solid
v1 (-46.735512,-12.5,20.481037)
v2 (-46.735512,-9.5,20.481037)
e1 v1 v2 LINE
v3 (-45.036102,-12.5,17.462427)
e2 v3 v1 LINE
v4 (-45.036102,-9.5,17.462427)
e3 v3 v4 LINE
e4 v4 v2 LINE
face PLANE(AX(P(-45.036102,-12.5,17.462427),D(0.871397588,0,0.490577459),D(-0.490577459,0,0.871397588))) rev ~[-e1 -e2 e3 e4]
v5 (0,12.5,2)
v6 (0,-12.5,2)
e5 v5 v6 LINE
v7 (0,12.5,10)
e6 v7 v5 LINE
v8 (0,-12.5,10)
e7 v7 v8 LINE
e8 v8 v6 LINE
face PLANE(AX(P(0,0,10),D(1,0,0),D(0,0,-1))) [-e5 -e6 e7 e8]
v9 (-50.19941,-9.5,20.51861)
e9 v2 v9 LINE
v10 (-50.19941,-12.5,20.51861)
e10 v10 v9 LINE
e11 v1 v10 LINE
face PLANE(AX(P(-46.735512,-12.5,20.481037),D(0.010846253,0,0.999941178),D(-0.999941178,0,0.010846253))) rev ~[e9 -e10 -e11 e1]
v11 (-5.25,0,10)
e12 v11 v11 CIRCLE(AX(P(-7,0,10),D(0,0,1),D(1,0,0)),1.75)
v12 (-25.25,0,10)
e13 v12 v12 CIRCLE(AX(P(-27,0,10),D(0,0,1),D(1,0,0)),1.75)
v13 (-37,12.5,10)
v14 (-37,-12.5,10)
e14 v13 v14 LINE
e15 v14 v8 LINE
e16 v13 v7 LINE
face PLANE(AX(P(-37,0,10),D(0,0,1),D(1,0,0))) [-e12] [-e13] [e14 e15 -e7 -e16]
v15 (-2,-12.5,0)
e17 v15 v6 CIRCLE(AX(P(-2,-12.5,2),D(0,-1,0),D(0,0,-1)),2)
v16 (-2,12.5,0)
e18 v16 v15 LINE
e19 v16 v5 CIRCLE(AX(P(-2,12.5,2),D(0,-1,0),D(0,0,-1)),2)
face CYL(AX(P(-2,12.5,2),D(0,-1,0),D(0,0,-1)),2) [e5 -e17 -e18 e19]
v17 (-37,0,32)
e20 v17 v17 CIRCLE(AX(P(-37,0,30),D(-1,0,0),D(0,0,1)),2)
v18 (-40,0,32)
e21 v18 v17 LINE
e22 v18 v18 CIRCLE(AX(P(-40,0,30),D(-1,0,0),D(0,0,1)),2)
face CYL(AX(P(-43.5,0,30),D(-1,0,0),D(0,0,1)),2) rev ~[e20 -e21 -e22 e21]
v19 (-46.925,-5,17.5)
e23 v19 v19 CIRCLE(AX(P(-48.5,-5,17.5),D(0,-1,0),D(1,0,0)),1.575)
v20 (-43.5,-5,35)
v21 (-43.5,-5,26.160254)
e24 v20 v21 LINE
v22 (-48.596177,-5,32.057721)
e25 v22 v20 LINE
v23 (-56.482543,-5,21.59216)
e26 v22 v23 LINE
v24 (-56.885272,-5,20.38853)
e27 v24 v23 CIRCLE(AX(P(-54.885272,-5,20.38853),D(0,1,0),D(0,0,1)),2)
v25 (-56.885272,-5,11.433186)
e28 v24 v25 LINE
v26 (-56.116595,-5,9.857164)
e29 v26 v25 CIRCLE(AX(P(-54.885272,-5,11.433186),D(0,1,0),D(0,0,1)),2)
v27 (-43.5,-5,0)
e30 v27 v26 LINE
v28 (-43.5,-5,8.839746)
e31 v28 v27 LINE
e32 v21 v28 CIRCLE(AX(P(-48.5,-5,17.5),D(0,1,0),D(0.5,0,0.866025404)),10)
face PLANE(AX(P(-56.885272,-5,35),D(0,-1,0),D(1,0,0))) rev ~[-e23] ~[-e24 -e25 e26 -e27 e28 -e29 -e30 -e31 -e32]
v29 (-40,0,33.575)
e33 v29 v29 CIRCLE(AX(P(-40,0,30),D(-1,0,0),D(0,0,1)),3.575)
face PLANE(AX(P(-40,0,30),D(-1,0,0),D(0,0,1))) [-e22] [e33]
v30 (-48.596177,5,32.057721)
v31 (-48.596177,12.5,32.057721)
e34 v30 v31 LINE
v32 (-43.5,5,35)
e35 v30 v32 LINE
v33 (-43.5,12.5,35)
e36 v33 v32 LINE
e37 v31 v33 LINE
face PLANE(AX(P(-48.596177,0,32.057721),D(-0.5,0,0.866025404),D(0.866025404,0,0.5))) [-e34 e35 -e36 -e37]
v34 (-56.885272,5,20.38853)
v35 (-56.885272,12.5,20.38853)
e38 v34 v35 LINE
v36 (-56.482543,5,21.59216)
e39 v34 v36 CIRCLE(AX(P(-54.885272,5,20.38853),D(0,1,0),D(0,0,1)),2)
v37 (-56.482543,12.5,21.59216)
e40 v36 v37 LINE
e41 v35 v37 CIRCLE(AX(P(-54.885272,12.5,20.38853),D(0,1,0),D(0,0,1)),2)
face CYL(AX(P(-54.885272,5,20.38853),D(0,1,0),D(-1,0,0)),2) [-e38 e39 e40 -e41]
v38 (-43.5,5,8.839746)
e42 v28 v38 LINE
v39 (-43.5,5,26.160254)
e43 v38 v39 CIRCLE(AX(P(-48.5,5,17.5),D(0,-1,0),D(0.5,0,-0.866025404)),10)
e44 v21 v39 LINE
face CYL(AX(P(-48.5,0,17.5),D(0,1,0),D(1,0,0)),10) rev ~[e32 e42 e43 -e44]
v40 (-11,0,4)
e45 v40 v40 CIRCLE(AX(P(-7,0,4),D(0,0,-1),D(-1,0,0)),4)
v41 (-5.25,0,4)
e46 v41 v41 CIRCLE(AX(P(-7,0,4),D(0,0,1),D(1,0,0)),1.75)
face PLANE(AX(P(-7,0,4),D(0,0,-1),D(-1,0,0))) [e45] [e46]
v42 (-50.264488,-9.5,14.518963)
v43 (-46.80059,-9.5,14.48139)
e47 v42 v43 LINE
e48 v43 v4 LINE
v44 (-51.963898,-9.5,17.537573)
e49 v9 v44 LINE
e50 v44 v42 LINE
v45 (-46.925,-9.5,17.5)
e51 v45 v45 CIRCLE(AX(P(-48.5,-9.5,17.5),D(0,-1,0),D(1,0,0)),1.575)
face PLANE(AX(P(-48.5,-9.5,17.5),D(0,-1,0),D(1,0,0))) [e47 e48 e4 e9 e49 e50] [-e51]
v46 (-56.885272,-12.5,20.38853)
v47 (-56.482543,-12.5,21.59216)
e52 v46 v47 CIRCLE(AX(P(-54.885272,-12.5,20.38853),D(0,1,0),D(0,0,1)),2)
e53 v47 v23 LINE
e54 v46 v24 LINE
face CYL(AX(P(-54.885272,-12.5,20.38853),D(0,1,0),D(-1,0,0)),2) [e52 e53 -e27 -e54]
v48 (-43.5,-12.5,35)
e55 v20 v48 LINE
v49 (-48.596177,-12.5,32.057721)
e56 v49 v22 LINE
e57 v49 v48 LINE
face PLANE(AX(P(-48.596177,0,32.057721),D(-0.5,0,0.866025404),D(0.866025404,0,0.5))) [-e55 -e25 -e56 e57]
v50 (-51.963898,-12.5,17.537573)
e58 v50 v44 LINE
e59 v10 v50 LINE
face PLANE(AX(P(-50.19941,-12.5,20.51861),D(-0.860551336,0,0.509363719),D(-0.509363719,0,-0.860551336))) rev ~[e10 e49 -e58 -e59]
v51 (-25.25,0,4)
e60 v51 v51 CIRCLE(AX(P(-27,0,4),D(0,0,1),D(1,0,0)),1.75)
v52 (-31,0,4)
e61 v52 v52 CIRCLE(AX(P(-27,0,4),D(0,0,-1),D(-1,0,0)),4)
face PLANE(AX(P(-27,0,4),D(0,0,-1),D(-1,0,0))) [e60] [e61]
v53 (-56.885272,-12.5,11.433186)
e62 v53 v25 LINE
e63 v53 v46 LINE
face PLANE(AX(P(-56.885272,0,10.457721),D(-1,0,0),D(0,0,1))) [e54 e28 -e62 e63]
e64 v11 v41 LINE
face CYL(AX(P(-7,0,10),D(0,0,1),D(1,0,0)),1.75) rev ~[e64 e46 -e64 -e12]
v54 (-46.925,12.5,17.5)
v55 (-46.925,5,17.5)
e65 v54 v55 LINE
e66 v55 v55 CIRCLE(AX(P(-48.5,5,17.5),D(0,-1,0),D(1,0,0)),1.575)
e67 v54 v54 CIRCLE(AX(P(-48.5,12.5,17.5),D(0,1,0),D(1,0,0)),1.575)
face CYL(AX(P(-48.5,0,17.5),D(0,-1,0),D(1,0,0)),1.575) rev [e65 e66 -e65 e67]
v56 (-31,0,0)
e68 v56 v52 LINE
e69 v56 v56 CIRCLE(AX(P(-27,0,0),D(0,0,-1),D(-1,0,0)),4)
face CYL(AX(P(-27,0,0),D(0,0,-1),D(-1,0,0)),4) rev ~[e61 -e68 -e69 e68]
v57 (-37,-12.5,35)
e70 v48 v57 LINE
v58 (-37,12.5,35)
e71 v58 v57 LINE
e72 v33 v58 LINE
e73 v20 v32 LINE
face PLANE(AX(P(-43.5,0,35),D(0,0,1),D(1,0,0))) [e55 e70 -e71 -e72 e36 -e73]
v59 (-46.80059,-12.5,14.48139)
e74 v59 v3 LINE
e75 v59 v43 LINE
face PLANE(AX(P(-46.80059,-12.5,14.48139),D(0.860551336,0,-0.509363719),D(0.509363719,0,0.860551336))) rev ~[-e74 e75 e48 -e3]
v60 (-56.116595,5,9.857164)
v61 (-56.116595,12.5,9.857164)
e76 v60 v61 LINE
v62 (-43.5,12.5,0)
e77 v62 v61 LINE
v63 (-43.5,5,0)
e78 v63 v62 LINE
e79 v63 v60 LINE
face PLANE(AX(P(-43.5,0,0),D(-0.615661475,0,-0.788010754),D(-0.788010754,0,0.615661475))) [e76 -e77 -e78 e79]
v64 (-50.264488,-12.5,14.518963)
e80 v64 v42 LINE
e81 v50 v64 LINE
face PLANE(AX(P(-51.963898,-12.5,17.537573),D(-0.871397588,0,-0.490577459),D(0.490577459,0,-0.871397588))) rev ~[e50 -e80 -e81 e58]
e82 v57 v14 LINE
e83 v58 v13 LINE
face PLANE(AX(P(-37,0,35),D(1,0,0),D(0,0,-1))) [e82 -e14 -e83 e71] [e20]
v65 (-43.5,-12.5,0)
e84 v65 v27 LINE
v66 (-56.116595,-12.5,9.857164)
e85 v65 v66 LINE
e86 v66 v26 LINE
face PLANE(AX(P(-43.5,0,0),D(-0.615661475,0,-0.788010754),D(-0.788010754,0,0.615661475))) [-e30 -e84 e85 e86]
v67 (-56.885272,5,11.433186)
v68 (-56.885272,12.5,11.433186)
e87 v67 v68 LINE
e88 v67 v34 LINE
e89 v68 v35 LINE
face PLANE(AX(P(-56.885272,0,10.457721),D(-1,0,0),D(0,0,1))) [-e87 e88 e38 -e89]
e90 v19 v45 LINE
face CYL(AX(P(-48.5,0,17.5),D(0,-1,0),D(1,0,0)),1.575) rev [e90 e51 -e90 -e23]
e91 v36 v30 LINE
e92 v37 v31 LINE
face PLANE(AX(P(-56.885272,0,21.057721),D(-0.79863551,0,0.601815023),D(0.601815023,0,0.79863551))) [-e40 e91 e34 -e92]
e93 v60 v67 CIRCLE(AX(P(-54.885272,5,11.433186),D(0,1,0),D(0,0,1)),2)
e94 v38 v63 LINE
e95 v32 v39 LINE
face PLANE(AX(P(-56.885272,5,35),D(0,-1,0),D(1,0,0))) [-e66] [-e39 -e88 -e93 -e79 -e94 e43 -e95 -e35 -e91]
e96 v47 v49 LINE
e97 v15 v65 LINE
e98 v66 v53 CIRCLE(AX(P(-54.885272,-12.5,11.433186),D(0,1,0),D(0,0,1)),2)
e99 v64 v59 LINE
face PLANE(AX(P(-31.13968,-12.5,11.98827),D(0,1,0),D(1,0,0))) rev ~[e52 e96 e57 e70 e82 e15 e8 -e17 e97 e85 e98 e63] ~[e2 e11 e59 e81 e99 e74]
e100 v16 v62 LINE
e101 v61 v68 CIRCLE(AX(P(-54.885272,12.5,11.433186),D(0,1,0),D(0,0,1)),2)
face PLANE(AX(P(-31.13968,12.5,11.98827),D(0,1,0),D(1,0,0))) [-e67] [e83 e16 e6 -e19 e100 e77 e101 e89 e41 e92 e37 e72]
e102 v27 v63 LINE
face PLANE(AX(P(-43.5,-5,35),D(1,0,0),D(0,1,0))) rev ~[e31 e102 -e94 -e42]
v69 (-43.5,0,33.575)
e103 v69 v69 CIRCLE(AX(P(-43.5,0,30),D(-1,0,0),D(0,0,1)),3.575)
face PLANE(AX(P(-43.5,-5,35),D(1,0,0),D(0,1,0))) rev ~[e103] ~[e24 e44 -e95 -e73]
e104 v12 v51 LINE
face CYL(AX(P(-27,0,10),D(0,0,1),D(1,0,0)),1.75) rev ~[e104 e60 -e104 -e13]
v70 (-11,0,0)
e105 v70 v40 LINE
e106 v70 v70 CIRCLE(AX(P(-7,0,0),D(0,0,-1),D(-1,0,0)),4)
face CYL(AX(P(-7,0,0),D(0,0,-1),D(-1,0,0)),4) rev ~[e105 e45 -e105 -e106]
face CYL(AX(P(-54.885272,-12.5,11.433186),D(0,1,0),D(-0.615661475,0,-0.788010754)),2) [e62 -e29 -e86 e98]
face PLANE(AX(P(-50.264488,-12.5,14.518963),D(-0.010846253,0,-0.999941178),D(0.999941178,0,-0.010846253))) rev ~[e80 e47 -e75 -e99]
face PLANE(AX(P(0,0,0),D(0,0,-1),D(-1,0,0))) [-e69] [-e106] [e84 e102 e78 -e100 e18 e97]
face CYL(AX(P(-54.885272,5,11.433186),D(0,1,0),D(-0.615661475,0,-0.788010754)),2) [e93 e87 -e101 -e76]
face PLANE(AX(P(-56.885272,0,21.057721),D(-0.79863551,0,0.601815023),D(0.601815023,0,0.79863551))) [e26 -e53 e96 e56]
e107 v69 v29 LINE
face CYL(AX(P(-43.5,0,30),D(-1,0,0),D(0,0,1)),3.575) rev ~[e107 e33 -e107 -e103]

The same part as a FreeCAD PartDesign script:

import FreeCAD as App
import Part
import Sketcher
from FreeCAD import Vector
Q = App.Units.Quantity


def edges_at(feature, points):
    """Names of the edges that pass closest to the given points."""
    edges = feature.Shape.Edges
    near = lambda p: min(range(len(edges)), key=lambda i: edges[i].distToShape(Part.Vertex(*p))[0])
    return sorted({f"Edge{near(p) + 1}" for p in points})

doc = App.newDocument("Part")
params = doc.addObject("Spreadsheet::Sheet", "Params")
for row, (alias, value) in enumerate([
    ("sketch1_diameter", "3.15 mm"),
    ("sketch1_width", "37 mm"),
    ("sketch1_height", "25 mm"),
    ("sketch1_height2", "10 mm"),
    ("sketch1_width2", "43.5 mm"),
    ("pad1_length", "25 mm"),
    ("sketch2_height", "10 mm"),
    ("sketch3_diameter", "3.5 mm"),
    ("pocket2_length", "25 mm"),
    ("sketch4_diameter", "8 mm"),
    ("pocket3_length", "4 mm"),
    ("fillet_radius", "2 mm"),
    ("sketch5_diameter", "4 mm"),
    ("pocket4_length", "10 mm"),
    ("sketch6_diameter", "7.15 mm"),
    ("pocket5_length", "3.5 mm"),
    ("sketch7_diameter", "20 mm"),
    ("pocket6_length", "5 mm"),
    ("pocket6_length2", "5 mm"),
    ("pocket7_length", "3 mm"),
], start=1):
    params.set(f"A{row}", alias)
    params.set(f"B{row}", "=" + value)
    params.setAlias(f"B{row}", alias)

body = doc.addObject("PartDesign::Body", "Body")

sketch1 = body.newObject("Sketcher::SketchObject", "Sketch")
sketch1.AttachmentSupport = (doc.getObject("XZ_Plane"), [""])
sketch1.MapMode = "FlatFace"
sketch1.addGeometry([
    Part.LineSegment(Vector(0, 0, 0), Vector(-43.5, 0, 0)),
    Part.LineSegment(Vector(-43.5, 0, 0), Vector(-56.885272, 10.457721, 0)),
    Part.LineSegment(Vector(-56.885272, 10.457721, 0), Vector(-56.885272, 21.057721, 0)),
    Part.LineSegment(Vector(-56.885272, 21.057721, 0), Vector(-48.596177, 32.057721, 0)),
    Part.LineSegment(Vector(-48.596177, 32.057721, 0), Vector(-43.5, 35, 0)),
    Part.LineSegment(Vector(-43.5, 35, 0), Vector(-37, 35, 0)),
    Part.LineSegment(Vector(-37, 35, 0), Vector(-37, 10, 0)),
    Part.LineSegment(Vector(-37, 10, 0), Vector(0, 10, 0)),
    Part.LineSegment(Vector(0, 10, 0), Vector(0, 0, 0)),
    Part.Circle(Vector(-48.5, 17.5, 0), Vector(0, 0, 1), 1.575),
], False)
sketch1.addConstraint([
    Sketcher.Constraint("Coincident", 0, 2, 1, 1),
    Sketcher.Constraint("Coincident", 1, 2, 2, 1),
    Sketcher.Constraint("Coincident", 2, 2, 3, 1),
    Sketcher.Constraint("Coincident", 3, 2, 4, 1),
    Sketcher.Constraint("Coincident", 4, 2, 5, 1),
    Sketcher.Constraint("Coincident", 5, 2, 6, 1),
    Sketcher.Constraint("Coincident", 6, 2, 7, 1),
    Sketcher.Constraint("Coincident", 7, 2, 8, 1),
    Sketcher.Constraint("Coincident", 8, 2, 0, 1),
    Sketcher.Constraint("Horizontal", 0),
    Sketcher.Constraint("Vertical", 2),
    Sketcher.Constraint("Horizontal", 5),
    Sketcher.Constraint("Vertical", 6),
    Sketcher.Constraint("Horizontal", 7),
    Sketcher.Constraint("Vertical", 8),
    Sketcher.Constraint("Coincident", 8, 2, -1, 1),
    Sketcher.Constraint("Vertical", 0, 2, 4, 2),
    Sketcher.Constraint("Diameter", 9, Q("3.15 mm")),
    Sketcher.Constraint("DistanceX", 7, 1, 7, 2, Q("37 mm")),
    Sketcher.Constraint("DistanceY", 6, 2, 6, 1, Q("25 mm")),
    Sketcher.Constraint("DistanceY", 8, 2, 8, 1, Q("10 mm")),
    Sketcher.Constraint("Angle", 1, Q("142 deg")),
    Sketcher.Constraint("Angle", 3, Q("53 deg")),
    Sketcher.Constraint("Angle", 4, Q("30 deg")),
    Sketcher.Constraint("DistanceX", 0, 2, 0, 1, Q("43.5 mm")),
    Sketcher.Constraint("DistanceY", 2, 1, 2, 2, Q("10.6 mm")),
    Sketcher.Constraint("DistanceX", 9, 3, 0, 2, Q("5 mm")),
    Sketcher.Constraint("DistanceY", 2, 2, 3, 2, Q("11 mm")),
    Sketcher.Constraint("DistanceY", -1, 1, 9, 3, Q("17.5 mm")),
])
sketch1.setExpression("Constraints[17]", "Params.sketch1_diameter")
sketch1.setExpression("Constraints[18]", "Params.sketch1_width")
sketch1.setExpression("Constraints[19]", "Params.sketch1_height")
sketch1.setExpression("Constraints[20]", "Params.sketch1_height2")
sketch1.setExpression("Constraints[24]", "Params.sketch1_width2")
pad1 = body.newObject("PartDesign::Pad", "Pad")
pad1.Profile = sketch1
pad1.setExpression("Length", "Params.pad1_length")
pad1.Midplane = True

sketch2 = body.newObject("Sketcher::SketchObject", "Sketch001")
sketch2.AttachmentSupport = (doc.getObject("XY_Plane"), [""])
sketch2.MapMode = "FlatFace"
sketch2.AttachmentOffset = App.Placement(Vector(0, 0, 35), App.Rotation())
sketch2.addGeometry([
    Part.LineSegment(Vector(-56.885272, 5, 0), Vector(-56.885272, -5, 0)),
    Part.LineSegment(Vector(-56.885272, -5, 0), Vector(-43.5, -5, 0)),
    Part.LineSegment(Vector(-43.5, -5, 0), Vector(-43.5, 5, 0)),
    Part.LineSegment(Vector(-43.5, 5, 0), Vector(-56.885272, 5, 0)),
], False)
sketch2.addConstraint([
    Sketcher.Constraint("Coincident", 0, 2, 1, 1),
    Sketcher.Constraint("Coincident", 1, 2, 2, 1),
    Sketcher.Constraint("Coincident", 2, 2, 3, 1),
    Sketcher.Constraint("Coincident", 3, 2, 0, 1),
    Sketcher.Constraint("Vertical", 0),
    Sketcher.Constraint("Horizontal", 1),
    Sketcher.Constraint("Vertical", 2),
    Sketcher.Constraint("Horizontal", 3),
    Sketcher.Constraint("DistanceY", 0, 2, 0, 1, Q("10 mm")),
    Sketcher.Constraint("DistanceY", 0, 2, -1, 1, Q("5 mm")),
    Sketcher.Constraint("DistanceX", 1, 2, -1, 1, Q("43.5 mm")),
    Sketcher.Constraint("DistanceX", 1, 1, 1, 2, Q("13.385272 mm")),
])
sketch2.setExpression("Constraints[8]", "Params.sketch2_height")
pocket1 = body.newObject("PartDesign::Pocket", "Pocket")
pocket1.Profile = sketch2
pocket1.Type = "ThroughAll"

sketch3 = body.newObject("Sketcher::SketchObject", "Sketch002")
sketch3.AttachmentSupport = (doc.getObject("XY_Plane"), [""])
sketch3.MapMode = "FlatFace"
sketch3.AttachmentOffset = App.Placement(Vector(0, 0, 10), App.Rotation())
sketch3.addGeometry([
    Part.Circle(Vector(-27, 0, 0), Vector(0, 0, 1), 1.75),
    Part.Circle(Vector(-7, 0, 0), Vector(0, 0, 1), 1.75),
], False)
sketch3.addConstraint([
    Sketcher.Constraint("Equal", 0, 1),
    Sketcher.Constraint("PointOnObject", 0, 3, -1),
    Sketcher.Constraint("PointOnObject", 1, 3, -1),
    Sketcher.Constraint("Diameter", 0, Q("3.5 mm")),
    Sketcher.Constraint("DistanceX", 0, 3, -1, 1, Q("27 mm")),
    Sketcher.Constraint("DistanceX", 1, 3, -1, 1, Q("7 mm")),
])
sketch3.setExpression("Constraints[3]", "Params.sketch3_diameter")
pocket2 = body.newObject("PartDesign::Pocket", "Pocket001")
pocket2.Profile = sketch3
pocket2.setExpression("Length", "Params.pocket2_length")

sketch4 = body.newObject("Sketcher::SketchObject", "Sketch003")
sketch4.AttachmentSupport = (doc.getObject("XY_Plane"), [""])
sketch4.MapMode = "FlatFace"
sketch4.addGeometry([
    Part.Circle(Vector(-7, 0, 0), Vector(0, 0, 1), 4),
    Part.Circle(Vector(-27, 0, 0), Vector(0, 0, 1), 4),
], False)
sketch4.addConstraint([
    Sketcher.Constraint("Equal", 0, 1),
    Sketcher.Constraint("PointOnObject", 0, 3, -1),
    Sketcher.Constraint("PointOnObject", 1, 3, -1),
    Sketcher.Constraint("Diameter", 0, Q("8 mm")),
    Sketcher.Constraint("DistanceX", 0, 3, -1, 1, Q("7 mm")),
    Sketcher.Constraint("DistanceX", 1, 3, -1, 1, Q("27 mm")),
])
sketch4.setExpression("Constraints[3]", "Params.sketch4_diameter")
pocket3 = body.newObject("PartDesign::Pocket", "Pocket002")
pocket3.Profile = sketch4
pocket3.setExpression("Length", "Params.pocket3_length")
pocket3.Reversed = True
doc.recompute()

fillet = body.newObject("PartDesign::Fillet", "Fillet")
fillet.Base = (pocket3, edges_at(pocket3, [
    (-56.885, 8.75, 21.058),
    (-56.885, 8.75, 10.458),
    (0, 0, 0),
    (-56.885, -8.75, 21.058),
    (-56.885, -8.75, 10.458),
]))
fillet.setExpression("Radius", "Params.fillet_radius")

sketch5 = body.newObject("Sketcher::SketchObject", "Sketch004")
sketch5.AttachmentSupport = (doc.getObject("YZ_Plane"), [""])
sketch5.MapMode = "FlatFace"
sketch5.AttachmentOffset = App.Placement(Vector(0, 0, -43.5), App.Rotation())
sketch5.addGeometry(Part.Circle(Vector(0, 30, 0), Vector(0, 0, 1), 2), False)
sketch5.addConstraint([
    Sketcher.Constraint("PointOnObject", 0, 3, -2),
    Sketcher.Constraint("Diameter", 0, Q("4 mm")),
    Sketcher.Constraint("DistanceY", -1, 1, 0, 3, Q("30 mm")),
])
sketch5.setExpression("Constraints[1]", "Params.sketch5_diameter")
pocket4 = body.newObject("PartDesign::Pocket", "Pocket003")
pocket4.Profile = sketch5
pocket4.setExpression("Length", "Params.pocket4_length")
pocket4.Reversed = True

sketch6 = body.newObject("Sketcher::SketchObject", "Sketch005")
sketch6.AttachmentSupport = (doc.getObject("YZ_Plane"), [""])
sketch6.MapMode = "FlatFace"
sketch6.AttachmentOffset = App.Placement(Vector(0, 0, -43.5), App.Rotation())
sketch6.addGeometry(Part.Circle(Vector(0, 30, 0), Vector(0, 0, 1), 3.575), False)
sketch6.addConstraint([
    Sketcher.Constraint("PointOnObject", 0, 3, -2),
    Sketcher.Constraint("Diameter", 0, Q("7.15 mm")),
    Sketcher.Constraint("DistanceY", -1, 1, 0, 3, Q("30 mm")),
])
sketch6.setExpression("Constraints[1]", "Params.sketch6_diameter")
pocket5 = body.newObject("PartDesign::Pocket", "Pocket004")
pocket5.Profile = sketch6
pocket5.setExpression("Length", "Params.pocket5_length")
pocket5.Reversed = True

sketch7 = body.newObject("Sketcher::SketchObject", "Sketch006")
sketch7.AttachmentSupport = (doc.getObject("XZ_Plane"), [""])
sketch7.MapMode = "FlatFace"
sketch7.addGeometry(Part.Circle(Vector(-48.5, 17.5, 0), Vector(0, 0, 1), 10), False)
sketch7.addConstraint([
    Sketcher.Constraint("Diameter", 0, Q("20 mm")),
    Sketcher.Constraint("DistanceX", 0, 3, -1, 1, Q("48.5 mm")),
    Sketcher.Constraint("DistanceY", -1, 1, 0, 3, Q("17.5 mm")),
])
sketch7.setExpression("Constraints[0]", "Params.sketch7_diameter")
pocket6 = body.newObject("PartDesign::Pocket", "Pocket005")
pocket6.Profile = sketch7
pocket6.Type = "TwoLengths"
pocket6.setExpression("Length", "Params.pocket6_length")
pocket6.setExpression("Length2", "Params.pocket6_length2")

sketch8 = body.newObject("Sketcher::SketchObject", "Sketch007")
sketch8.AttachmentSupport = (doc.getObject("XZ_Plane"), [""])
sketch8.MapMode = "FlatFace"
sketch8.AttachmentOffset = App.Placement(Vector(0, 0, 12.5), App.Rotation())
sketch8.addGeometry([
    Part.LineSegment(Vector(-46.80059, 14.48139, 0), Vector(-45.036102, 17.462427, 0)),
    Part.LineSegment(Vector(-45.036102, 17.462427, 0), Vector(-46.735512, 20.481037, 0)),
    Part.LineSegment(Vector(-46.735512, 20.481037, 0), Vector(-50.19941, 20.51861, 0)),
    Part.LineSegment(Vector(-50.19941, 20.51861, 0), Vector(-51.963898, 17.537573, 0)),
    Part.LineSegment(Vector(-51.963898, 17.537573, 0), Vector(-50.264488, 14.518963, 0)),
    Part.LineSegment(Vector(-50.264488, 14.518963, 0), Vector(-46.80059, 14.48139, 0)),
], False)
sketch8.addConstraint([
    Sketcher.Constraint("Coincident", 0, 2, 1, 1),
    Sketcher.Constraint("Coincident", 1, 2, 2, 1),
    Sketcher.Constraint("Coincident", 2, 2, 3, 1),
    Sketcher.Constraint("Coincident", 3, 2, 4, 1),
    Sketcher.Constraint("Coincident", 4, 2, 5, 1),
    Sketcher.Constraint("Coincident", 5, 2, 0, 1),
    Sketcher.Constraint("Parallel", 0, 3),
    Sketcher.Constraint("Parallel", 1, 4),
    Sketcher.Constraint("Parallel", 2, 5),
    Sketcher.Constraint("Equal", 0, 1),
    Sketcher.Constraint("Equal", 1, 2),
    Sketcher.Constraint("Equal", 2, 3),
    Sketcher.Constraint("Distance", 0, Q("3.464102 mm")),
    Sketcher.Constraint("DistanceX", 2, 2, -1, 1, Q("50.19941 mm")),
    Sketcher.Constraint("DistanceY", -1, 1, 2, 2, Q("20.51861 mm")),
    Sketcher.Constraint("DistanceX", 5, 2, -1, 1, Q("46.80059 mm")),
    Sketcher.Constraint("DistanceY", -1, 1, 5, 2, Q("14.48139 mm")),
    Sketcher.Constraint("DistanceX", 1, 2, 0, 2, Q("1.69941 mm")),
])
pocket7 = body.newObject("PartDesign::Pocket", "Pocket006")
pocket7.Profile = sketch8
pocket7.setExpression("Length", "Params.pocket7_length")

doc.recompute()
